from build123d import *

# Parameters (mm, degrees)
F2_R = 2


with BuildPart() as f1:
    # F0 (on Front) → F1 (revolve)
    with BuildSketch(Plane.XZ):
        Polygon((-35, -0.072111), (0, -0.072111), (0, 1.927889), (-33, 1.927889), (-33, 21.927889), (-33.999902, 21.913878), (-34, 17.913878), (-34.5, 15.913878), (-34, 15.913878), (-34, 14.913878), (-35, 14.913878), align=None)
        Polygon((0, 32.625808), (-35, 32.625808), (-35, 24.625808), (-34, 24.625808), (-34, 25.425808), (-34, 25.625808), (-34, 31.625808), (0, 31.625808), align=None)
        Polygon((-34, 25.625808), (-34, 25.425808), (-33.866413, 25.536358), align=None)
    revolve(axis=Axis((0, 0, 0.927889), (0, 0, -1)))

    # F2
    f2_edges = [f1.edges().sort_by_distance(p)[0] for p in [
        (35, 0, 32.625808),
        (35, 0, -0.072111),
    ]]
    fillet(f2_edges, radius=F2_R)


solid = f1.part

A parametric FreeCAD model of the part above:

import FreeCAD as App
import Part
import Sketcher


def edges_at(feature, points):
    """Names of the edges that pass closest to the given points."""
    edges = feature.Shape.Edges
    near = lambda p: min(range(len(edges)), key=lambda i: edges[i].distToShape(Part.Vertex(*p))[0])
    return sorted({f"Edge{near(p) + 1}" for p in points})


def add_polygon(sketch, points):
    """Adds a closed chain of lines whose ends are joined by coincident constraints."""
    first, n = sketch.GeometryCount, len(points)
    for a, b in zip(points, points[1:] + points[:1]):
        sketch.addGeometry(Part.LineSegment(App.Vector(*a, 0), App.Vector(*b, 0)), False)
    for i in range(n):
        sketch.addConstraint(Sketcher.Constraint("Coincident", first + i, 2, first + (i + 1) % n, 1))

doc = App.newDocument("Part")
body = doc.addObject("PartDesign::Body", "Body")
body.AllowCompound = True

# Sketch on XZ plane
sketch1 = doc.addObject("Sketcher::SketchObject", "Sketch")
body.addObject(sketch1)
sketch1.AttachmentSupport = (doc.XZ_Plane, [""])
sketch1.MapMode = "FlatFace"
add_polygon(sketch1, [(-35, -0.07), (0, -0.07), (0, 1.93), (-33, 1.93), (-33, 21.93), (-34, 21.91), (-34, 17.91), (-34.5, 15.91), (-34, 15.91), (-34, 14.91), (-35, 14.91)])  # lines 0-10
add_polygon(sketch1, [(0, 32.63), (-35, 32.63), (-35, 24.63), (-34, 24.63), (-34, 25.43), (-33.87, 25.54), (-34, 25.63), (-34, 31.63), (0, 31.63)])  # lines 11-19
sketch1.addConstraint([
    Sketcher.Constraint("Horizontal", 0),
    Sketcher.Constraint("Vertical", 1),
    Sketcher.Constraint("Horizontal", 2),
    Sketcher.Constraint("Vertical", 3),
    Sketcher.Constraint("Horizontal", 7),
    Sketcher.Constraint("Vertical", 8),
    Sketcher.Constraint("Horizontal", 9),
    Sketcher.Constraint("Vertical", 10),
    Sketcher.Constraint("Horizontal", 11),
    Sketcher.Constraint("Vertical", 12),
    Sketcher.Constraint("Horizontal", 13),
    Sketcher.Constraint("Vertical", 14),
    Sketcher.Constraint("Vertical", 17),
    Sketcher.Constraint("Horizontal", 18),
    Sketcher.Constraint("Vertical", 19),
    Sketcher.Constraint("PointOnObject", 0, 2, -2),
    Sketcher.Constraint("PointOnObject", 18, 2, -2),
    Sketcher.Constraint("Vertical", 5, 2, 7, 2),
    Sketcher.Constraint("Vertical", 10, 2, 11, 2),
    Sketcher.Constraint("Vertical", 8, 2, 13, 2),
    Sketcher.Constraint("Vertical", 14, 2, 16, 2),
    Sketcher.Constraint("Equal", 13, 8),
    Sketcher.Constraint("Equal", 8, 19),
    Sketcher.Constraint("DistanceX", 0, 1, 0, 2, 35.0),
    Sketcher.Constraint("DistanceX", 2, 2, 2, 1, 33.0),
    Sketcher.Constraint("DistanceX", 9, 2, 9, 1, 1.0),
    Sketcher.Constraint("DistanceY", 1, 1, 1, 2, 2.0),
    Sketcher.Constraint("DistanceY", 3, 1, 3, 2, 20.0),
    Sketcher.Constraint("DistanceY", 12, 2, 12, 1, 8.0),
    Sketcher.Constraint("DistanceY", 17, 1, 17, 2, 6.0),
    Sketcher.Constraint("Distance", 4, 1.0),
    Sketcher.Constraint("Distance", 5, 4.0),
    Sketcher.Constraint("DistanceX", 7, 1, 7, 2, 0.5),
    Sketcher.Constraint("DistanceY", 14, 1, 14, 2, 0.8),
    Sketcher.Constraint("DistanceY", 6, 2, 5, 2, 2.0),
    Sketcher.Constraint("DistanceY", 10, 2, 10, 1, 14.985989),
    Sketcher.Constraint("Distance", 16, 0.160769),
    Sketcher.Constraint("DistanceY", 0, 2, -1, 1, 0.072111),
    Sketcher.Constraint("DistanceY", -1, 1, 14, 2, 25.425808),
    Sketcher.Constraint("DistanceY", -1, 1, 15, 2, 25.536358),
])
revolution = doc.addObject("PartDesign::Revolution", "Revolution")
body.addObject(revolution)
revolution.Profile = sketch1
revolution.ReferenceAxis = (sketch1, ["V_Axis"])
revolution.Angle = 360
doc.recompute()

fillet = doc.addObject("PartDesign::Fillet", "Fillet")
body.addObject(fillet)
fillet.Base = (revolution, edges_at(revolution, [(35, 0, 32.626), (35, 0, -0.072)]))
fillet.Radius = 2

doc.recompute()
